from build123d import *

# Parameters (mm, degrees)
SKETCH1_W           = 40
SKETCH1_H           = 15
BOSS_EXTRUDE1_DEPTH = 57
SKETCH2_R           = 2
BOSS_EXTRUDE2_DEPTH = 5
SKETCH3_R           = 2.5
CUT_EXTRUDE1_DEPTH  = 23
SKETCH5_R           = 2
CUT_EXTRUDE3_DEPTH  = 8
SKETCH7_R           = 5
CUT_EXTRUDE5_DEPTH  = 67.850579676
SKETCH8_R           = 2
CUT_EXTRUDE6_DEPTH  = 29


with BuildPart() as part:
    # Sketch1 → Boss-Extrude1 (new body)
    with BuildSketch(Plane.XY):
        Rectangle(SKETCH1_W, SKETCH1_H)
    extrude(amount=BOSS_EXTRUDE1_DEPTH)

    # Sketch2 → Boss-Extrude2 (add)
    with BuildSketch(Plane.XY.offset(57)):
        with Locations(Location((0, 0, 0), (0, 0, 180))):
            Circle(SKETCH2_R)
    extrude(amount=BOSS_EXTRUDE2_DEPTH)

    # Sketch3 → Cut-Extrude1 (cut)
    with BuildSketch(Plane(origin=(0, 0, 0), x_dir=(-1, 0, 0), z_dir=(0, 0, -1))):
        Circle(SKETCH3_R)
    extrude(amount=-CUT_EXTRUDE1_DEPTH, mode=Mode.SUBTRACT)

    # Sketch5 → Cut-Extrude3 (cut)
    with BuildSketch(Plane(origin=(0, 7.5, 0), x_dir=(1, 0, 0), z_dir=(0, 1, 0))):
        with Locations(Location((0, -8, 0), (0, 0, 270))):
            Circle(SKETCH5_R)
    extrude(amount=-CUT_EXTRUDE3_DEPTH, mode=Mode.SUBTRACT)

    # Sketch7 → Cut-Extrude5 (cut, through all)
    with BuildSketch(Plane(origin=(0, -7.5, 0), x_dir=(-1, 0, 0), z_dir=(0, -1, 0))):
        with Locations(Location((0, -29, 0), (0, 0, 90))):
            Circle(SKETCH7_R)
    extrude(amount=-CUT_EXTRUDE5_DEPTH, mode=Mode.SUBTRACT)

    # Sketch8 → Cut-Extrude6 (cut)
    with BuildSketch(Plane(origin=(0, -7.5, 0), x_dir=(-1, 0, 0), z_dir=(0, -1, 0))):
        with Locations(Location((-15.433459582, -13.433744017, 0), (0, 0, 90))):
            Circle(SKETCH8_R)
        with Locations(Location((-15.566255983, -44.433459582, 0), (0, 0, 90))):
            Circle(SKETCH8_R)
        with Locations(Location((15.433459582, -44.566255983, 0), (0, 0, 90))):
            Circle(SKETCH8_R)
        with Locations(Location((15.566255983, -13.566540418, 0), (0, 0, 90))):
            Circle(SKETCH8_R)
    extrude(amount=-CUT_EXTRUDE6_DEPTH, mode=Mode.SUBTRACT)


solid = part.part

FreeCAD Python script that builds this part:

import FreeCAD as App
import Part
import Sketcher

V = App.Vector
Q = App.Units.Quantity

doc = App.newDocument("Part")
params = doc.addObject("Spreadsheet::Sheet", "Params")
for row, (alias, value) in enumerate([
    ("sketch1_width", "40 mm"),
    ("sketch1_height", "15 mm"),
    ("pad1_length", "57 mm"),
    ("sketch2_diameter", "4 mm"),
    ("pad2_length", "5 mm"),
    ("sketch3_diameter", "5 mm"),
    ("pocket1_length", "23 mm"),
    ("sketch4_diameter", "4 mm"),
    ("pocket2_length", "8 mm"),
    ("sketch5_diameter", "10 mm"),
    ("sketch6_diameter", "4 mm"),
    ("pocket4_length", "29 mm"),
], start=1):
    params.set(f"A{row}", alias)
    params.set(f"B{row}", "=" + value)
    params.setAlias(f"B{row}", alias)

body = doc.addObject("PartDesign::Body", "Body")

# Sketch on XY plane
sketch1 = doc.addObject("Sketcher::SketchObject", "Sketch")
body.addObject(sketch1)
sketch1.AttachmentSupport = (doc.XY_Plane, [""])
sketch1.MapMode = "FlatFace"
sketch1.addGeometry([
    Part.LineSegment(V(-20, 8, 0), V(-20, -8, 0)),
    Part.LineSegment(V(-20, -8, 0), V(20, -8, 0)),
    Part.LineSegment(V(20, -8, 0), V(20, 8, 0)),
    Part.LineSegment(V(20, 8, 0), V(-20, 8, 0)),
], False)
sketch1.addConstraint([
    Sketcher.Constraint("Coincident", 0, 2, 1, 1),
    Sketcher.Constraint("Coincident", 1, 2, 2, 1),
    Sketcher.Constraint("Coincident", 2, 2, 3, 1),
    Sketcher.Constraint("Coincident", 3, 2, 0, 1),
    Sketcher.Constraint("Vertical", 0),
    Sketcher.Constraint("Horizontal", 1),
    Sketcher.Constraint("Vertical", 2),
    Sketcher.Constraint("Horizontal", 3),
    Sketcher.Constraint("Symmetric", 0, 2, 2, 2, -1, 1),
    Sketcher.Constraint("DistanceX", 1, 1, 1, 2, Q("40 mm")),
    Sketcher.Constraint("DistanceY", 0, 2, 0, 1, Q("15 mm")),
])
sketch1.setExpression("Constraints[9]", "Params.sketch1_width")
sketch1.setExpression("Constraints[10]", "Params.sketch1_height")
pad1 = doc.addObject("PartDesign::Pad", "Pad")
body.addObject(pad1)
pad1.Profile = sketch1
pad1.setExpression("Length", "Params.pad1_length")

# Sketch on XY plane
sketch2 = doc.addObject("Sketcher::SketchObject", "Sketch001")
body.addObject(sketch2)
sketch2.AttachmentSupport = (doc.XY_Plane, [""])
sketch2.MapMode = "FlatFace"
sketch2.AttachmentOffset = App.Placement(V(0, 0, 57), App.Rotation())
sketch2.addGeometry(Part.Circle(V(0, 0, 0), V(0, 0, 1), 2), False)
sketch2.addConstraint([
    Sketcher.Constraint("Coincident", 0, 3, -1, 1),
    Sketcher.Constraint("Diameter", 0, Q("4 mm")),
])
sketch2.setExpression("Constraints[1]", "Params.sketch2_diameter")
pad2 = doc.addObject("PartDesign::Pad", "Pad001")
body.addObject(pad2)
pad2.Profile = sketch2
pad2.setExpression("Length", "Params.pad2_length")

# Sketch on XY plane
sketch3 = doc.addObject("Sketcher::SketchObject", "Sketch002")
body.addObject(sketch3)
sketch3.AttachmentSupport = (doc.XY_Plane, [""])
sketch3.MapMode = "FlatFace"
sketch3.addGeometry(Part.Circle(V(0, 0, 0), V(0, 0, 1), 2.5), False)
sketch3.addConstraint([
    Sketcher.Constraint("Coincident", 0, 3, -1, 1),
    Sketcher.Constraint("Diameter", 0, Q("5 mm")),
])
sketch3.setExpression("Constraints[1]", "Params.sketch3_diameter")
pocket1 = doc.addObject("PartDesign::Pocket", "Pocket")
body.addObject(pocket1)
pocket1.Profile = sketch3
pocket1.setExpression("Length", "Params.pocket1_length")
pocket1.Reversed = True

# Sketch on XZ plane
sketch4 = doc.addObject("Sketcher::SketchObject", "Sketch003")
body.addObject(sketch4)
sketch4.AttachmentSupport = (doc.XZ_Plane, [""])
sketch4.MapMode = "FlatFace"
sketch4.AttachmentOffset = App.Placement(V(0, 0, -7.5), App.Rotation())
sketch4.addGeometry(Part.Circle(V(0, 8, 0), V(0, 0, 1), 2), False)
sketch4.addConstraint([
    Sketcher.Constraint("PointOnObject", 0, 3, -2),
    Sketcher.Constraint("Diameter", 0, Q("4 mm")),
    Sketcher.Constraint("DistanceY", -1, 1, 0, 3, Q("8 mm")),
])
sketch4.setExpression("Constraints[1]", "Params.sketch4_diameter")
pocket2 = doc.addObject("PartDesign::Pocket", "Pocket001")
body.addObject(pocket2)
pocket2.Profile = sketch4
pocket2.setExpression("Length", "Params.pocket2_length")
pocket2.Reversed = True

# Sketch on XZ plane
sketch5 = doc.addObject("Sketcher::SketchObject", "Sketch004")
body.addObject(sketch5)
sketch5.AttachmentSupport = (doc.XZ_Plane, [""])
sketch5.MapMode = "FlatFace"
sketch5.AttachmentOffset = App.Placement(V(0, 0, 7.5), App.Rotation())
sketch5.addGeometry(Part.Circle(V(0, 29, 0), V(0, 0, 1), 5), False)
sketch5.addConstraint([
    Sketcher.Constraint("PointOnObject", 0, 3, -2),
    Sketcher.Constraint("Diameter", 0, Q("10 mm")),
    Sketcher.Constraint("DistanceY", -1, 1, 0, 3, Q("29 mm")),
])
sketch5.setExpression("Constraints[1]", "Params.sketch5_diameter")
pocket3 = doc.addObject("PartDesign::Pocket", "Pocket002")
body.addObject(pocket3)
pocket3.Profile = sketch5
pocket3.Type = "ThroughAll"

# Sketch on XZ plane
sketch6 = doc.addObject("Sketcher::SketchObject", "Sketch005")
body.addObject(sketch6)
sketch6.AttachmentSupport = (doc.XZ_Plane, [""])
sketch6.MapMode = "FlatFace"
sketch6.AttachmentOffset = App.Placement(V(0, 0, 7.5), App.Rotation())
sketch6.addGeometry([
    Part.Circle(V(15.4, 13.4, 0), V(0, 0, 1), 2),
    Part.Circle(V(15.6, 44.4, 0), V(0, 0, 1), 2),
    Part.Circle(V(-15.4, 44.6, 0), V(0, 0, 1), 2),
    Part.Circle(V(-15.6, 13.6, 0), V(0, 0, 1), 2),
], False)
sketch6.addConstraint([
    Sketcher.Constraint("Equal", 0, 1),
    Sketcher.Constraint("Equal", 1, 2),
    Sketcher.Constraint("Equal", 2, 3),
    Sketcher.Constraint("Diameter", 0, Q("4 mm")),
    Sketcher.Constraint("DistanceX", -1, 1, 0, 3, Q("15.43346 mm")),
    Sketcher.Constraint("DistanceY", -1, 1, 1, 3, Q("44.43346 mm")),
    Sketcher.Constraint("DistanceX", 2, 3, -1, 1, Q("15.43346 mm")),
    Sketcher.Constraint("DistanceY", -1, 1, 3, 3, Q("13.56654 mm")),
    Sketcher.Constraint("DistanceY", 0, 3, 2, 3, Q("31.132512 mm")),
    Sketcher.Constraint("DistanceX", 3, 3, 1, 3, Q("31.132512 mm")),
    Sketcher.Constraint("DistanceY", -1, 1, 0, 3, Q("13.433744 mm")),
    Sketcher.Constraint("DistanceX", -1, 1, 1, 3, Q("15.566256 mm")),
])
sketch6.setExpression("Constraints[3]", "Params.sketch6_diameter")
pocket4 = doc.addObject("PartDesign::Pocket", "Pocket003")
body.addObject(pocket4)
pocket4.Profile = sketch6
pocket4.setExpression("Length", "Params.pocket4_length")

doc.recompute()
